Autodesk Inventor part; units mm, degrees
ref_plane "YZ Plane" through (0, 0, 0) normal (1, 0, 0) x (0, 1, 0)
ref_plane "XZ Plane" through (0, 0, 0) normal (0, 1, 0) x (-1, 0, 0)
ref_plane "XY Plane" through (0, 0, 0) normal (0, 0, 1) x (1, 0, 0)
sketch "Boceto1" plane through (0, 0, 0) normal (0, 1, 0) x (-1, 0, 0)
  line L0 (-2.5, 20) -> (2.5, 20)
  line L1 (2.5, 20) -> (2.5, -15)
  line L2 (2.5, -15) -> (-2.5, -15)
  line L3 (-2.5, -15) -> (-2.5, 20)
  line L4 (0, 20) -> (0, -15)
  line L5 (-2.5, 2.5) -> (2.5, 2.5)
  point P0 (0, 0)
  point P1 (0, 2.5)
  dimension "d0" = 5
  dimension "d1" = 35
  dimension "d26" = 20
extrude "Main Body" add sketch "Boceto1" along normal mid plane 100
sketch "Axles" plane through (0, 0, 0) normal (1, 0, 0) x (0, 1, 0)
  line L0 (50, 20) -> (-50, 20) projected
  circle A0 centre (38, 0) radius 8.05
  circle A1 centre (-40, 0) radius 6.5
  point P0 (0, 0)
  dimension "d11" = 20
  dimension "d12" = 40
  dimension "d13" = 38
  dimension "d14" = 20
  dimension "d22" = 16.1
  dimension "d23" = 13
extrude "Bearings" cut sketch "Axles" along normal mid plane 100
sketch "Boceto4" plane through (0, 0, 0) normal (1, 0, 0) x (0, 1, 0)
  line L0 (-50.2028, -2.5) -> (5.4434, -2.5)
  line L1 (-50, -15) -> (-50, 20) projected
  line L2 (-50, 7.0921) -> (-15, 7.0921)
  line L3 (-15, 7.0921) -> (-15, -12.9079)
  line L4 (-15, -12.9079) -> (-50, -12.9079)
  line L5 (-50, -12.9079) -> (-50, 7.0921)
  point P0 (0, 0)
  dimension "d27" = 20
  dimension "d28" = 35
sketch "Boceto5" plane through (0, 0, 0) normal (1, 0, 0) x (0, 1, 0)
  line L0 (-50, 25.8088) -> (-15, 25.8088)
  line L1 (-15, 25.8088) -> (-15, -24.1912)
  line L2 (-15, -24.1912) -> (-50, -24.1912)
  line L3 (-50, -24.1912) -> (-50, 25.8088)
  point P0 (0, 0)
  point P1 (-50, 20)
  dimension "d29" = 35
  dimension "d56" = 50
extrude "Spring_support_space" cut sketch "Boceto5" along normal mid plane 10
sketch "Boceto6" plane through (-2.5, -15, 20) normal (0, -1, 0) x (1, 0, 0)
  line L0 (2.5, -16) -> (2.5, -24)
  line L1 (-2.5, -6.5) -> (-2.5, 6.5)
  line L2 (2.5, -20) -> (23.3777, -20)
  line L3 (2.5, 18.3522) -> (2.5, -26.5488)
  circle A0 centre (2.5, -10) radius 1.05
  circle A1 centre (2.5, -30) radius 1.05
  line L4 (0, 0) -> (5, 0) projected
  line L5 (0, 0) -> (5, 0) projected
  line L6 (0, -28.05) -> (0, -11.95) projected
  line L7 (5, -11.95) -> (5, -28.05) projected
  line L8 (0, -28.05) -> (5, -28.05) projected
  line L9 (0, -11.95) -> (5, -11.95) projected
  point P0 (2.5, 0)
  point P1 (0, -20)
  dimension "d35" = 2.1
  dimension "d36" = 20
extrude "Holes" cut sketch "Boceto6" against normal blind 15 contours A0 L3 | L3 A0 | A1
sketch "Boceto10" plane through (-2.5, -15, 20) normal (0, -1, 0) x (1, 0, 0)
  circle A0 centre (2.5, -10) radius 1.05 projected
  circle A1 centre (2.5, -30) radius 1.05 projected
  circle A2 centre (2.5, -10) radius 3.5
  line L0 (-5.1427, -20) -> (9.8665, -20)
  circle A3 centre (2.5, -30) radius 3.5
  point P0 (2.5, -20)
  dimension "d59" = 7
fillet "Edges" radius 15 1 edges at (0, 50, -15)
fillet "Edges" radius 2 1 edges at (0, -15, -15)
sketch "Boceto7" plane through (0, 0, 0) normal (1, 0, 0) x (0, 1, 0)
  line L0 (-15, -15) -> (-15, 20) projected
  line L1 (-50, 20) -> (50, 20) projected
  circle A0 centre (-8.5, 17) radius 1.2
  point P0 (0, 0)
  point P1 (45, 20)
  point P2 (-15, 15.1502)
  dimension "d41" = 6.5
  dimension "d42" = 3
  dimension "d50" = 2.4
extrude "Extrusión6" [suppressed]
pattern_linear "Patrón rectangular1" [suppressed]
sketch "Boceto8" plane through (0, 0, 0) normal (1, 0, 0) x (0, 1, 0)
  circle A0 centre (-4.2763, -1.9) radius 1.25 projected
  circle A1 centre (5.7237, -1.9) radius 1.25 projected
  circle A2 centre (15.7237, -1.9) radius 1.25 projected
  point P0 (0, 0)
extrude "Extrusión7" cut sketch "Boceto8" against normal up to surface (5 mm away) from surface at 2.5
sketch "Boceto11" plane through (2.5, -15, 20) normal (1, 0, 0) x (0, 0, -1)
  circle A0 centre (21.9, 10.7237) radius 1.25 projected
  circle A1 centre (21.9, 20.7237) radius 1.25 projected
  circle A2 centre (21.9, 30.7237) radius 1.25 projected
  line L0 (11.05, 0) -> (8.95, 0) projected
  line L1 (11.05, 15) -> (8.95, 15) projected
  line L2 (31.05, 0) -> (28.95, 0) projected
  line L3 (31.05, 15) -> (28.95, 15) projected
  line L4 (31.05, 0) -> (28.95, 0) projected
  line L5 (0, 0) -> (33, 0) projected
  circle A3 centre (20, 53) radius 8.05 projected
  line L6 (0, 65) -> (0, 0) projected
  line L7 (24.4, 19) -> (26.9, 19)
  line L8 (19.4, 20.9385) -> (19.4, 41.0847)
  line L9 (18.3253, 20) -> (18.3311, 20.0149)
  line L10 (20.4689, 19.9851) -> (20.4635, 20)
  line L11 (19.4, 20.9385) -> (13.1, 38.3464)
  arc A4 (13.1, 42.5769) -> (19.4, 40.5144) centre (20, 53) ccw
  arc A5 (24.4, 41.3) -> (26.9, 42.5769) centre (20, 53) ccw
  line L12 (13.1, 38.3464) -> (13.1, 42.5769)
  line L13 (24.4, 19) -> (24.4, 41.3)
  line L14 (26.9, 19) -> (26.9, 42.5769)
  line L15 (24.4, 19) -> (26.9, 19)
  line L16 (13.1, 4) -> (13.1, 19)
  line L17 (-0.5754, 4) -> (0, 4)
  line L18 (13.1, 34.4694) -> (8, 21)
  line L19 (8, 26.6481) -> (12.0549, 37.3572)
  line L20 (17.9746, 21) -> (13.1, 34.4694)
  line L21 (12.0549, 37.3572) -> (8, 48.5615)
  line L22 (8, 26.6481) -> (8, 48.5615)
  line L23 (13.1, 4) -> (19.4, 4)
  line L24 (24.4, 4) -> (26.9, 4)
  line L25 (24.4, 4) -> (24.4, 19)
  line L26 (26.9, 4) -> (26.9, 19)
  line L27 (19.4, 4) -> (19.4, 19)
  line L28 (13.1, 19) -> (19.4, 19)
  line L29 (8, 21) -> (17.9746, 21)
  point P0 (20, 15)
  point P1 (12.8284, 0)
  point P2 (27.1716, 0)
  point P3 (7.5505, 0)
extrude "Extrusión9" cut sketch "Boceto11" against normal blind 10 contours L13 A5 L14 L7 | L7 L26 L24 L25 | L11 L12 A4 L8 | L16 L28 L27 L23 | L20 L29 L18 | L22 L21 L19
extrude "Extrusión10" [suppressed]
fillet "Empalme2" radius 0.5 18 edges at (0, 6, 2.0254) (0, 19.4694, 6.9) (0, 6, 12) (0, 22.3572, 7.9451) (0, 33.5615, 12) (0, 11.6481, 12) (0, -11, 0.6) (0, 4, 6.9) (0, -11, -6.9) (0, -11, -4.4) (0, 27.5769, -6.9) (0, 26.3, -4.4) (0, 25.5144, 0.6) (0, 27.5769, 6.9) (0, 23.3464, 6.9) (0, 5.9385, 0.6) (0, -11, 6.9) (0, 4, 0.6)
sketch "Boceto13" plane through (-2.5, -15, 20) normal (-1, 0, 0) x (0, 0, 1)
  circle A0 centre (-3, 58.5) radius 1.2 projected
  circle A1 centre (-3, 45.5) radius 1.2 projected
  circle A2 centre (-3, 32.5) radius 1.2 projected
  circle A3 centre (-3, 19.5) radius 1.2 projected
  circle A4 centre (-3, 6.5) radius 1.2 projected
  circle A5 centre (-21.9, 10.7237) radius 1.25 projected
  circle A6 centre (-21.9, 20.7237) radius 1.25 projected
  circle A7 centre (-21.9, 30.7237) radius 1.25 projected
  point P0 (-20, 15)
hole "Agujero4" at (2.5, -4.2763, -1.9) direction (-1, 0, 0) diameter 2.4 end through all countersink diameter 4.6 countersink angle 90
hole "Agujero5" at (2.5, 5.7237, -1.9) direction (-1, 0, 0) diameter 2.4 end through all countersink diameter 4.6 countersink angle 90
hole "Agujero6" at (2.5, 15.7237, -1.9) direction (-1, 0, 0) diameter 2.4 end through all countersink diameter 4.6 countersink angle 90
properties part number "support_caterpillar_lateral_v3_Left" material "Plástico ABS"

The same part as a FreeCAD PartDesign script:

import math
import FreeCAD as App
import Part
import Sketcher

V = App.Vector


def edges_at(feature, points):
    """Names of the edges that pass closest to the given points."""
    edges = feature.Shape.Edges
    near = lambda p: min(range(len(edges)), key=lambda i: edges[i].distToShape(Part.Vertex(*p))[0])
    return sorted({f"Edge{near(p) + 1}" for p in points})


def add_polygon(sketch, points):
    """Adds a closed chain of lines whose ends are joined by coincident constraints."""
    first, n = sketch.GeometryCount, len(points)
    for a, b in zip(points, points[1:] + points[:1]):
        sketch.addGeometry(Part.LineSegment(App.Vector(*a, 0), App.Vector(*b, 0)), False)
    for i in range(n):
        sketch.addConstraint(Sketcher.Constraint("Coincident", first + i, 2, first + (i + 1) % n, 1))

doc = App.newDocument("Part")
body = doc.addObject("PartDesign::Body", "Body")

sketch1 = doc.addObject("Sketcher::SketchObject", "Sketch")
body.addObject(sketch1)
sketch1.AttachmentSupport = (doc.XZ_Plane, [""])
sketch1.MapMode = "FlatFace"
add_polygon(sketch1, [(2.5, 20), (2.5, -15), (-2.5, -15), (-2.5, 20)])
sketch1.addConstraint(Sketcher.Constraint("Vertical", 0))
sketch1.addConstraint(Sketcher.Constraint("Horizontal", 1))
sketch1.addConstraint(Sketcher.Constraint("Vertical", 2))
sketch1.addConstraint(Sketcher.Constraint("Horizontal", 3))
sketch1.addConstraint(Sketcher.Constraint("DistanceX", 1, 2, 1, 1, 5.0))
sketch1.addConstraint(Sketcher.Constraint("DistanceY", 0, 2, 0, 1, 35.0))
sketch1.addConstraint(Sketcher.Constraint("DistanceY", -1, 1, 2, 2, 20.0))
sketch1.addConstraint(Sketcher.Constraint("DistanceX", -1, 1, 0, 2, 2.5))
pad1 = doc.addObject("PartDesign::Pad", "Pad")
body.addObject(pad1)
pad1.Profile = sketch1
pad1.Length = 100
pad1.Midplane = True

sketch2 = doc.addObject("Sketcher::SketchObject", "Sketch001")
body.addObject(sketch2)
sketch2.AttachmentSupport = (doc.YZ_Plane, [""])
sketch2.MapMode = "FlatFace"
sketch2.addGeometry(Part.Circle(V(38, 0, 0), V(0, 0, 1), 8.05), False)
sketch2.addGeometry(Part.Circle(V(-40, 0, 0), V(0, 0, 1), 6.5), False)
sketch2.addConstraint(Sketcher.Constraint("PointOnObject", 0, 3, -1))
sketch2.addConstraint(Sketcher.Constraint("PointOnObject", 1, 3, -1))
sketch2.addConstraint(Sketcher.Constraint("Diameter", 1, 13.0))
sketch2.addConstraint(Sketcher.Constraint("Diameter", 0, 16.1))
sketch2.addConstraint(Sketcher.Constraint("DistanceX", -1, 1, 0, 3, 38.0))
sketch2.addConstraint(Sketcher.Constraint("DistanceX", 1, 3, -1, 1, 40.0))
pocket1 = doc.addObject("PartDesign::Pocket", "Pocket")
body.addObject(pocket1)
pocket1.Profile = sketch2
pocket1.Length = 100
pocket1.Midplane = True

sketch3 = doc.addObject("Sketcher::SketchObject", "Sketch002")
body.addObject(sketch3)
sketch3.AttachmentSupport = (doc.YZ_Plane, [""])
sketch3.MapMode = "FlatFace"
add_polygon(sketch3, [(-15, 25.8088), (-50, 25.8088), (-50, -24.1912), (-15, -24.1912)])
sketch3.addConstraint(Sketcher.Constraint("Horizontal", 0))
sketch3.addConstraint(Sketcher.Constraint("Vertical", 1))
sketch3.addConstraint(Sketcher.Constraint("Horizontal", 2))
sketch3.addConstraint(Sketcher.Constraint("Vertical", 3))
sketch3.addConstraint(Sketcher.Constraint("DistanceX", 0, 2, 0, 1, 35.0))
sketch3.addConstraint(Sketcher.Constraint("DistanceY", 1, 2, 1, 1, 50.0))
sketch3.addConstraint(Sketcher.Constraint("DistanceX", 0, 2, -1, 1, 50.0))
sketch3.addConstraint(Sketcher.Constraint("DistanceY", -1, 1, 0, 2, 25.8088))
pocket2 = doc.addObject("PartDesign::Pocket", "Pocket001")
body.addObject(pocket2)
pocket2.Profile = sketch3
pocket2.Length = 10
pocket2.Midplane = True

sketch4 = doc.addObject("Sketcher::SketchObject", "Sketch003")
body.addObject(sketch4)
sketch4.AttachmentSupport = (doc.XZ_Plane, [""])
sketch4.MapMode = "FlatFace"
sketch4.AttachmentOffset = App.Placement(V(0, 0, 15), App.Rotation())
sketch4.addGeometry(Part.Circle(V(0, 10, 0), V(0, 0, 1), 1.05), False)
sketch4.addGeometry(Part.Circle(V(0, -10, 0), V(0, 0, 1), 1.05), False)
sketch4.addConstraint(Sketcher.Constraint("Equal", 0, 1))
sketch4.addConstraint(Sketcher.Constraint("Symmetric", 0, 3, 1, 3, -1, 1))
sketch4.addConstraint(Sketcher.Constraint("PointOnObject", 0, 3, -2))
sketch4.addConstraint(Sketcher.Constraint("Diameter", 0, 2.1))
sketch4.addConstraint(Sketcher.Constraint("DistanceY", 1, 3, 0, 3, 20.0))
pocket3 = doc.addObject("PartDesign::Pocket", "Pocket002")
body.addObject(pocket3)
pocket3.Profile = sketch4
pocket3.Length = 15
doc.recompute()

fillet = doc.addObject("PartDesign::Fillet", "Fillet")
body.addObject(fillet)
fillet.Base = (pocket3, edges_at(pocket3, [(0, 50, -15)]))
fillet.Radius = 15
doc.recompute()

fillet2 = doc.addObject("PartDesign::Fillet", "Fillet001")
body.addObject(fillet2)
fillet2.Base = (fillet, edges_at(fillet, [(0, -15, -15)]))
fillet2.Radius = 2

sketch5 = doc.addObject("Sketcher::SketchObject", "Sketch004")
body.addObject(sketch5)
sketch5.AttachmentSupport = (doc.YZ_Plane, [""])
sketch5.MapMode = "FlatFace"
sketch5.AttachmentOffset = App.Placement(V(0, 0, 2.5), App.Rotation())
sketch5.addGeometry(Part.Circle(V(-4.2763, -1.9, 0), V(0, 0, 1), 1.25), False)
sketch5.addGeometry(Part.Circle(V(5.7237, -1.9, 0), V(0, 0, 1), 1.25), False)
sketch5.addGeometry(Part.Circle(V(15.7237, -1.9, 0), V(0, 0, 1), 1.25), False)
sketch5.addConstraint(Sketcher.Constraint("Equal", 0, 1))
sketch5.addConstraint(Sketcher.Constraint("Equal", 1, 2))
sketch5.addConstraint(Sketcher.Constraint("Horizontal", 0, 3, 1, 3))
sketch5.addConstraint(Sketcher.Constraint("Horizontal", 1, 3, 2, 3))
sketch5.addConstraint(Sketcher.Constraint("Diameter", 0, 2.5))
sketch5.addConstraint(Sketcher.Constraint("DistanceX", 0, 3, 1, 3, 10.0))
sketch5.addConstraint(Sketcher.Constraint("DistanceX", 1, 3, 2, 3, 10.0))
sketch5.addConstraint(Sketcher.Constraint("DistanceY", 0, 3, -1, 1, 1.9))
sketch5.addConstraint(Sketcher.Constraint("DistanceX", 0, 3, -1, 1, 4.2763))
pocket4 = doc.addObject("PartDesign::Pocket", "Pocket003")
body.addObject(pocket4)
pocket4.Profile = sketch5
pocket4.Length = 5

sketch6 = doc.addObject("Sketcher::SketchObject", "Sketch005")
body.addObject(sketch6)
sketch6.AttachmentSupport = (doc.YZ_Plane, [""])
sketch6.MapMode = "FlatFace"
sketch6.AttachmentOffset = App.Placement(V(0, 0, 2.5), App.Rotation())
sketch6.addGeometry(Part.LineSegment(V(26.3, -4.4, 0), V(-11, -4.4, 0)), False)
sketch6.addGeometry(Part.LineSegment(V(-11, -4.4, 0), V(-11, -6.9, 0)), False)
sketch6.addGeometry(Part.LineSegment(V(-11, -6.9, 0), V(27.5769, -6.9, 0)), False)
sketch6.addGeometry(Part.ArcOfCircle(Part.Circle(V(38.002937, 0.001298, 0), V(0, 0, 1), 12.503206), math.radians(-159.38948), math.radians(-146.498265)), False)
sketch6.addGeometry(Part.LineSegment(V(23.3464, 6.9, 0), V(5.9385, 0.6, 0)), False)
sketch6.addGeometry(Part.LineSegment(V(5.9385, 0.6, 0), V(25.5144, 0.6, 0)), False)
sketch6.addGeometry(Part.ArcOfCircle(Part.Circle(V(38, 0, 0), V(0, 0, 1), 12.5), math.radians(146.495793), math.radians(177.248747)), False)
sketch6.addGeometry(Part.LineSegment(V(27.5769, 6.9, 0), V(23.3464, 6.9, 0)), False)
add_polygon(sketch6, [(4, 6.9), (-11, 6.9), (-11, 0.6), (4, 0.6)])
add_polygon(sketch6, [(6, 2.0254), (19.4694, 6.9), (6, 12)])
add_polygon(sketch6, [(33.5615, 12), (11.6481, 12), (22.3572, 7.9451)])
sketch6.addConstraint(Sketcher.Constraint("Coincident", 0, 2, 1, 1))
sketch6.addConstraint(Sketcher.Constraint("Coincident", 1, 2, 2, 1))
sketch6.addConstraint(Sketcher.Constraint("Coincident", 2, 2, 3, 2))
sketch6.addConstraint(Sketcher.Constraint("Coincident", 3, 1, 0, 1))
sketch6.addConstraint(Sketcher.Constraint("Coincident", 4, 2, 5, 1))
sketch6.addConstraint(Sketcher.Constraint("Coincident", 5, 2, 6, 2))
sketch6.addConstraint(Sketcher.Constraint("Coincident", 6, 1, 7, 1))
sketch6.addConstraint(Sketcher.Constraint("Coincident", 7, 2, 4, 1))
sketch6.addConstraint(Sketcher.Constraint("Horizontal", 0))
sketch6.addConstraint(Sketcher.Constraint("Vertical", 1))
sketch6.addConstraint(Sketcher.Constraint("Horizontal", 2))
sketch6.addConstraint(Sketcher.Constraint("Horizontal", 5))
sketch6.addConstraint(Sketcher.Constraint("Horizontal", 7))
sketch6.addConstraint(Sketcher.Constraint("Horizontal", 8))
sketch6.addConstraint(Sketcher.Constraint("Vertical", 9))
sketch6.addConstraint(Sketcher.Constraint("Horizontal", 10))
sketch6.addConstraint(Sketcher.Constraint("Vertical", 11))
sketch6.addConstraint(Sketcher.Constraint("Vertical", 14))
sketch6.addConstraint(Sketcher.Constraint("Horizontal", 15))
sketch6.addConstraint(Sketcher.Constraint("Symmetric", 2, 2, 6, 1, -1))
sketch6.addConstraint(Sketcher.Constraint("Symmetric", 1, 2, 8, 2, -1))
sketch6.addConstraint(Sketcher.Constraint("PointOnObject", 6, 3, -1))
sketch6.addConstraint(Sketcher.Constraint("Parallel", 4, 12))
sketch6.addConstraint(Sketcher.Constraint("Parallel", 13, 16))
sketch6.addConstraint(Sketcher.Constraint("Parallel", 12, 17))
sketch6.addConstraint(Sketcher.Constraint("Horizontal", 5, 2, 9, 2))
sketch6.addConstraint(Sketcher.Constraint("Horizontal", 11, 2, 12, 2))
sketch6.addConstraint(Sketcher.Constraint("Horizontal", 13, 2, 15, 2))
sketch6.addConstraint(Sketcher.Constraint("Radius", 6, 12.5))
sketch6.addConstraint(Sketcher.Constraint("DistanceX", 8, 2, 8, 1, 15.0))
sketch6.addConstraint(Sketcher.Constraint("DistanceX", 0, 2, 0, 1, 37.3))
sketch6.addConstraint(Sketcher.Constraint("DistanceY", 1, 2, 1, 1, 2.5))
sketch6.addConstraint(Sketcher.Constraint("DistanceY", 9, 2, 9, 1, 6.3))
sketch6.addConstraint(Sketcher.Constraint("DistanceX", -1, 1, 6, 3, 38.0))
sketch6.addConstraint(Sketcher.Constraint("DistanceX", 0, 2, -1, 1, 11.0))
sketch6.addConstraint(Sketcher.Constraint("DistanceX", -1, 1, 13, 2, 6.0))
sketch6.addConstraint(Sketcher.Constraint("DistanceY", -1, 1, 13, 2, 12.0))
sketch6.addConstraint(Sketcher.Constraint("DistanceY", 0, 2, 4, 2, 5.0))
sketch6.addConstraint(Sketcher.Constraint("Radius", 3, 12.5032))
sketch6.addConstraint(Sketcher.Constraint("DistanceX", 5, 1, 5, 2, 19.576))
sketch6.addConstraint(Sketcher.Constraint("Distance", 16, 11.451))
sketch6.addConstraint(Sketcher.Constraint("DistanceX", 7, 2, 7, 1, 4.2305))
sketch6.addConstraint(Sketcher.Constraint("DistanceX", 15, 2, 15, 1, 21.9134))
sketch6.addConstraint(Sketcher.Constraint("DistanceX", -1, 1, 15, 2, 11.648))
pocket5 = doc.addObject("PartDesign::Pocket", "Pocket004")
body.addObject(pocket5)
pocket5.Profile = sketch6
pocket5.Length = 10
doc.recompute()

fillet3 = doc.addObject("PartDesign::Fillet", "Fillet002")
body.addObject(fillet3)
fillet3.Base = (pocket5, edges_at(pocket5, [
    (0, 6, 2.025),
    (0, 19.469, 6.9),
    (0, 6, 12),
    (0, 22.357, 7.945),
    (0, 33.562, 12),
    (0, 11.648, 12),
    (0, -11, 0.6),
    (0, 4, 6.9),
    (0, -11, -6.9),
    (0, -11, -4.4),
    (0, 27.577, -6.9),
    (0, 26.3, -4.4),
    (0, 25.514, 0.6),
    (0, 27.577, 6.9),
    (0, 23.346, 6.9),
    (0, 5.939, 0.6),
    (0, -11, 6.9),
    (0, 4, 0.6),
]))
fillet3.Radius = 0.5

sketch7 = doc.addObject("Sketcher::SketchObject", "Sketch006")
body.addObject(sketch7)
sketch7.AttachmentSupport = (doc.YZ_Plane, [""])
sketch7.MapMode = "FlatFace"
sketch7.AttachmentOffset = App.Placement(V(0, 0, 2.5), App.Rotation())
sketch7.addGeometry(Part.Circle(V(-4.2763, -1.9, 0), V(0, 0, 1), 1.2), False)
sketch7.addConstraint(Sketcher.Constraint("Diameter", 0, 2.4))
sketch7.addConstraint(Sketcher.Constraint("DistanceY", 0, 3, -1, 1, 1.9))
sketch7.addConstraint(Sketcher.Constraint("DistanceX", 0, 3, -1, 1, 4.2763))
doc.recompute()
hole = doc.addObject("PartDesign::Hole", "Hole")
body.addObject(hole)
hole.Profile = sketch7
hole.ThreadType = "None"
hole.Diameter = 2.4
hole.DepthType = "ThroughAll"
hole.HoleCutType = "Countersink"
hole.HoleCutDiameter = 4.6
hole.HoleCutCountersinkAngle = 90

sketch8 = doc.addObject("Sketcher::SketchObject", "Sketch007")
body.addObject(sketch8)
sketch8.AttachmentSupport = (doc.YZ_Plane, [""])
sketch8.MapMode = "FlatFace"
sketch8.AttachmentOffset = App.Placement(V(0, 0, 2.5), App.Rotation())
sketch8.addGeometry(Part.Circle(V(5.7237, -1.9, 0), V(0, 0, 1), 1.2), False)
sketch8.addConstraint(Sketcher.Constraint("Diameter", 0, 2.4))
sketch8.addConstraint(Sketcher.Constraint("DistanceY", 0, 3, -1, 1, 1.9))
sketch8.addConstraint(Sketcher.Constraint("DistanceX", -1, 1, 0, 3, 5.7237))
doc.recompute()
hole2 = doc.addObject("PartDesign::Hole", "Hole001")
body.addObject(hole2)
hole2.Profile = sketch8
hole2.ThreadType = "None"
hole2.Diameter = 2.4
hole2.DepthType = "ThroughAll"
hole2.HoleCutType = "Countersink"
hole2.HoleCutDiameter = 4.6
hole2.HoleCutCountersinkAngle = 90

sketch9 = doc.addObject("Sketcher::SketchObject", "Sketch008")
body.addObject(sketch9)
sketch9.AttachmentSupport = (doc.YZ_Plane, [""])
sketch9.MapMode = "FlatFace"
sketch9.AttachmentOffset = App.Placement(V(0, 0, 2.5), App.Rotation())
sketch9.addGeometry(Part.Circle(V(15.7237, -1.9, 0), V(0, 0, 1), 1.2), False)
sketch9.addConstraint(Sketcher.Constraint("Diameter", 0, 2.4))
sketch9.addConstraint(Sketcher.Constraint("DistanceY", 0, 3, -1, 1, 1.9))
sketch9.addConstraint(Sketcher.Constraint("DistanceX", -1, 1, 0, 3, 15.7237))
doc.recompute()
hole3 = doc.addObject("PartDesign::Hole", "Hole002")
body.addObject(hole3)
hole3.Profile = sketch9
hole3.ThreadType = "None"
hole3.Diameter = 2.4
hole3.DepthType = "ThroughAll"
hole3.HoleCutType = "Countersink"
hole3.HoleCutDiameter = 4.6
hole3.HoleCutCountersinkAngle = 90

doc.recompute()
